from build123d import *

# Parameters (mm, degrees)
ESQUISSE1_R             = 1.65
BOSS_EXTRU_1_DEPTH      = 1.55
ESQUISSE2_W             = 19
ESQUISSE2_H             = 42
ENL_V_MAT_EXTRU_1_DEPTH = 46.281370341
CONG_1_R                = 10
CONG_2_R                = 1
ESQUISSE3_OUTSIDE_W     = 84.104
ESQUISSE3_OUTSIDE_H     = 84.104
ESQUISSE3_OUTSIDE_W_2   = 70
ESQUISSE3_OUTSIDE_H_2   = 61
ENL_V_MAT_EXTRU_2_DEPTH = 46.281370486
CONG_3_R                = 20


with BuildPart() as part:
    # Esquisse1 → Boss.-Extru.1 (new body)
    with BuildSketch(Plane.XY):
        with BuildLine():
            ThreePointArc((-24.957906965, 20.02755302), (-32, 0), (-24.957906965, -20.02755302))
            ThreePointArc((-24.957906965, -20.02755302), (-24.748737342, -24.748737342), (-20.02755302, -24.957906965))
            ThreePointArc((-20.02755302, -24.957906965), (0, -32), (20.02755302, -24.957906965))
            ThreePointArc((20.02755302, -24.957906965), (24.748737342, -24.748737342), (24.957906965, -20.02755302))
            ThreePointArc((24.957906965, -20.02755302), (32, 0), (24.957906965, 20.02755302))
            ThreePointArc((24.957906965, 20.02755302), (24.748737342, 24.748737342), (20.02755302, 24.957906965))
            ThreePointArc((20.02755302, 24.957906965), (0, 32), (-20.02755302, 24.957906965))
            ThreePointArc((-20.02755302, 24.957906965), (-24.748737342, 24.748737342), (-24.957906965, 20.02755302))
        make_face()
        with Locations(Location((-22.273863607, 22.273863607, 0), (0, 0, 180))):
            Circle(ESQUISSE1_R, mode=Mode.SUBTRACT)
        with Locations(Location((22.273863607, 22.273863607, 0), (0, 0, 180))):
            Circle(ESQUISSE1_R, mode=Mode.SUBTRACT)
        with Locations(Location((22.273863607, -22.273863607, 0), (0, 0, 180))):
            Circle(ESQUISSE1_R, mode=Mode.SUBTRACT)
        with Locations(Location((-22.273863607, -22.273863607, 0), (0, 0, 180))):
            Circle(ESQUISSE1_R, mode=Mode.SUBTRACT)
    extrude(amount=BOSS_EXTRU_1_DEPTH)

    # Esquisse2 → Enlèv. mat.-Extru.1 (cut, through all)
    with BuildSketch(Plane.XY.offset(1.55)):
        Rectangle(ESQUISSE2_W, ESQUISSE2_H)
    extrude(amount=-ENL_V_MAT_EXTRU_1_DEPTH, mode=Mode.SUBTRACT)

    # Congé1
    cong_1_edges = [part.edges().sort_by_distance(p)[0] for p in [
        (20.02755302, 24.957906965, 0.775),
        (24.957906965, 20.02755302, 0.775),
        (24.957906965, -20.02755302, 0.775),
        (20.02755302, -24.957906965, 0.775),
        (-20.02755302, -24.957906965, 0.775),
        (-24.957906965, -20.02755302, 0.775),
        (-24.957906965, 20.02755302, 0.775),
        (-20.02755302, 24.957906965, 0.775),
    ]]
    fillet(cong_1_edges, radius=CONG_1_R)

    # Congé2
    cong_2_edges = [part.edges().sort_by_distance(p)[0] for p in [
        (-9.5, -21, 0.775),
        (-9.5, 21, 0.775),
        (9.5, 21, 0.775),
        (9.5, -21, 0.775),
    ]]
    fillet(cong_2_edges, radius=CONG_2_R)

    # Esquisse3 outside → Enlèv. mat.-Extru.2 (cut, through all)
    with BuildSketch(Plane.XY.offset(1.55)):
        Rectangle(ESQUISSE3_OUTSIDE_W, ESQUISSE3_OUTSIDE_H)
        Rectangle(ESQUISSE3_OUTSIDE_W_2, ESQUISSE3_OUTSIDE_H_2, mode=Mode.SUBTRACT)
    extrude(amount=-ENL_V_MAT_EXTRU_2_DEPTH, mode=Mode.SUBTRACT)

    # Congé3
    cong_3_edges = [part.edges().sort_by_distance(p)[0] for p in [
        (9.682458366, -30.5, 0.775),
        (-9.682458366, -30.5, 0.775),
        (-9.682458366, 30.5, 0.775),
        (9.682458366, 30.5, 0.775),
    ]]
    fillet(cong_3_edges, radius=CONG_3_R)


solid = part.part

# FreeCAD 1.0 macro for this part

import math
import FreeCAD as App
import Part
import Sketcher
from FreeCAD import Vector


def edges_at(feature, points):
    """Names of the edges that pass closest to the given points."""
    edges = feature.Shape.Edges
    near = lambda p: min(range(len(edges)), key=lambda i: edges[i].distToShape(Part.Vertex(*p))[0])
    return sorted({f"Edge{near(p) + 1}" for p in points})

doc = App.newDocument("Part")
params = doc.addObject("Spreadsheet::Sheet", "Params")
for row, (alias, value) in enumerate([
    ("sketch1_radius", "32 mm"),
    ("sketch1_diameter", "3.3 mm"),
    ("sketch1_radius2", "3.5 mm"),
    ("pad1_length", "1.55 mm"),
    ("sketch2_width", "19 mm"),
    ("sketch2_height", "42 mm"),
    ("fillet_radius", "10 mm"),
    ("fillet2_radius", "1 mm"),
    ("sketch3_width", "70 mm"),
    ("sketch3_height", "61 mm"),
    ("fillet3_radius", "20 mm"),
], start=1):
    params.set(f"A{row}", alias)
    params.set(f"B{row}", "=" + value)
    params.setAlias(f"B{row}", alias)

body = doc.addObject("PartDesign::Body", "Body")

sketch1 = doc.addObject("Sketcher::SketchObject", "Sketch")
body.addObject(sketch1)
sketch1.AttachmentSupport = (doc.XY_Plane, [""])
sketch1.MapMode = "FlatFace"
sketch1.addGeometry([
    Part.ArcOfCircle(Part.Circle(Vector(0, 0, 0), Vector(0, 0, 1), 32), math.radians(141.254587), math.radians(218.745413)),
    Part.ArcOfCircle(Part.Circle(Vector(-22.273864, -22.273864, 0), Vector(0, 0, 1), 3.5), math.radians(140.073602), math.radians(309.926398)),
    Part.ArcOfCircle(Part.Circle(Vector(0, 0, 0), Vector(0, 0, 1), 32), math.radians(-128.745413), math.radians(-51.254587)),
    Part.ArcOfCircle(Part.Circle(Vector(22.273864, -22.273864, 0), Vector(0, 0, 1), 3.5), math.radians(-129.926398), math.radians(39.926398)),
    Part.ArcOfCircle(Part.Circle(Vector(0, 0, 0), Vector(0, 0, 1), 32), math.radians(-38.745413), math.radians(38.745413)),
    Part.ArcOfCircle(Part.Circle(Vector(22.273864, 22.273864, 0), Vector(0, 0, 1), 3.5), math.radians(-39.926398), math.radians(129.926398)),
    Part.ArcOfCircle(Part.Circle(Vector(0, 0, 0), Vector(0, 0, 1), 32), math.radians(51.254587), math.radians(128.745413)),
    Part.ArcOfCircle(Part.Circle(Vector(-22.273864, 22.273864, 0), Vector(0, 0, 1), 3.5), math.radians(50.073602), math.radians(219.926398)),
    Part.Circle(Vector(-22.273864, -22.273864, 0), Vector(0, 0, 1), 1.65),
    Part.Circle(Vector(22.273864, -22.273864, 0), Vector(0, 0, 1), 1.65),
    Part.Circle(Vector(-22.273864, 22.273864, 0), Vector(0, 0, 1), 1.65),
    Part.Circle(Vector(22.273864, 22.273864, 0), Vector(0, 0, 1), 1.65),
], False)
sketch1.addConstraint([
    Sketcher.Constraint("Coincident", 0, 2, 1, 1),
    Sketcher.Constraint("Coincident", 1, 2, 2, 1),
    Sketcher.Constraint("Coincident", 2, 2, 3, 1),
    Sketcher.Constraint("Coincident", 3, 2, 4, 1),
    Sketcher.Constraint("Coincident", 4, 2, 5, 1),
    Sketcher.Constraint("Coincident", 5, 2, 6, 1),
    Sketcher.Constraint("Coincident", 6, 2, 7, 1),
    Sketcher.Constraint("Coincident", 7, 2, 0, 1),
    Sketcher.Constraint("Coincident", 0, 3, -1, 1),
    Sketcher.Constraint("Coincident", 2, 3, -1, 1),
    Sketcher.Constraint("Coincident", 4, 3, -1, 1),
    Sketcher.Constraint("Coincident", 6, 3, -1, 1),
    Sketcher.Constraint("Coincident", 8, 3, 1, 3),
    Sketcher.Constraint("Coincident", 9, 3, 3, 3),
    Sketcher.Constraint("Coincident", 10, 3, 7, 3),
    Sketcher.Constraint("Coincident", 11, 3, 5, 3),
    Sketcher.Constraint("Equal", 0, 2),
    Sketcher.Constraint("Equal", 1, 3),
    Sketcher.Constraint("Equal", 2, 4),
    Sketcher.Constraint("Equal", 3, 5),
    Sketcher.Constraint("Equal", 4, 6),
    Sketcher.Constraint("Equal", 5, 7),
    Sketcher.Constraint("Equal", 8, 9),
    Sketcher.Constraint("Equal", 9, 10),
    Sketcher.Constraint("Equal", 10, 11),
    Sketcher.Constraint("Symmetric", 1, 3, 5, 3, -1, 1),
    Sketcher.Constraint("Symmetric", 3, 3, 7, 3, -1, 1),
    Sketcher.Constraint("Symmetric", 1, 3, 3, 3, -2),
    Sketcher.Constraint("Radius", 0, 32.0),
    Sketcher.Constraint("Diameter", 8, 3.3),
    Sketcher.Constraint("Radius", 1, 3.5),
    Sketcher.Constraint("DistanceY", 1, 3, 0, 2, 2.246311),
    Sketcher.Constraint("DistanceX", 1, 3, 1, 2, 2.246311),
])
sketch1.setExpression("Constraints[28]", "Params.sketch1_radius")
sketch1.setExpression("Constraints[29]", "Params.sketch1_diameter")
sketch1.setExpression("Constraints[30]", "Params.sketch1_radius2")
pad1 = doc.addObject("PartDesign::Pad", "Pad")
body.addObject(pad1)
pad1.Profile = sketch1
pad1.setExpression("Length", "Params.pad1_length")

sketch2 = doc.addObject("Sketcher::SketchObject", "Sketch001")
body.addObject(sketch2)
sketch2.AttachmentSupport = (doc.XY_Plane, [""])
sketch2.MapMode = "FlatFace"
sketch2.AttachmentOffset = App.Placement(Vector(0, 0, 1.55), App.Rotation())
sketch2.addGeometry([
    Part.LineSegment(Vector(-9.5, 21, 0), Vector(-9.5, -21, 0)),
    Part.LineSegment(Vector(-9.5, -21, 0), Vector(9.5, -21, 0)),
    Part.LineSegment(Vector(9.5, -21, 0), Vector(9.5, 21, 0)),
    Part.LineSegment(Vector(9.5, 21, 0), Vector(-9.5, 21, 0)),
], False)
sketch2.addConstraint([
    Sketcher.Constraint("Coincident", 0, 2, 1, 1),
    Sketcher.Constraint("Coincident", 1, 2, 2, 1),
    Sketcher.Constraint("Coincident", 2, 2, 3, 1),
    Sketcher.Constraint("Coincident", 3, 2, 0, 1),
    Sketcher.Constraint("Vertical", 0),
    Sketcher.Constraint("Horizontal", 1),
    Sketcher.Constraint("Vertical", 2),
    Sketcher.Constraint("Horizontal", 3),
    Sketcher.Constraint("Symmetric", 0, 2, 2, 2, -1, 1),
    Sketcher.Constraint("DistanceX", 1, 1, 1, 2, 19.0),
    Sketcher.Constraint("DistanceY", 0, 2, 0, 1, 42.0),
])
sketch2.setExpression("Constraints[9]", "Params.sketch2_width")
sketch2.setExpression("Constraints[10]", "Params.sketch2_height")
pocket1 = doc.addObject("PartDesign::Pocket", "Pocket")
body.addObject(pocket1)
pocket1.Profile = sketch2
pocket1.Type = "ThroughAll"
doc.recompute()

fillet = doc.addObject("PartDesign::Fillet", "Fillet")
body.addObject(fillet)
fillet.Base = (pocket1, edges_at(pocket1, [
    (20.028, 24.958, 0.775),
    (24.958, 20.028, 0.775),
    (24.958, -20.028, 0.775),
    (20.028, -24.958, 0.775),
    (-20.028, -24.958, 0.775),
    (-24.958, -20.028, 0.775),
    (-24.958, 20.028, 0.775),
    (-20.028, 24.958, 0.775),
]))
fillet.setExpression("Radius", "Params.fillet_radius")
doc.recompute()

fillet2 = doc.addObject("PartDesign::Fillet", "Fillet001")
body.addObject(fillet2)
fillet2.Base = (fillet, edges_at(fillet, [
    (-9.5, -21, 0.775),
    (-9.5, 21, 0.775),
    (9.5, 21, 0.775),
    (9.5, -21, 0.775),
]))
fillet2.setExpression("Radius", "Params.fillet2_radius")

sketch3 = doc.addObject("Sketcher::SketchObject", "Sketch002")
body.addObject(sketch3)
sketch3.AttachmentSupport = (doc.XY_Plane, [""])
sketch3.MapMode = "FlatFace"
sketch3.AttachmentOffset = App.Placement(Vector(0, 0, 1.55), App.Rotation())
sketch3.addGeometry([
    Part.LineSegment(Vector(-42.052, 42.052, 0), Vector(-42.052, -42.052, 0)),
    Part.LineSegment(Vector(-42.052, -42.052, 0), Vector(42.052, -42.052, 0)),
    Part.LineSegment(Vector(42.052, -42.052, 0), Vector(42.052, 42.052, 0)),
    Part.LineSegment(Vector(42.052, 42.052, 0), Vector(-42.052, 42.052, 0)),
    Part.LineSegment(Vector(35, -30.5, 0), Vector(-35, -30.5, 0)),
    Part.LineSegment(Vector(-35, -30.5, 0), Vector(-35, 30.5, 0)),
    Part.LineSegment(Vector(-35, 30.5, 0), Vector(35, 30.5, 0)),
    Part.LineSegment(Vector(35, 30.5, 0), Vector(35, -30.5, 0)),
], False)
sketch3.addConstraint([
    Sketcher.Constraint("Coincident", 0, 2, 1, 1),
    Sketcher.Constraint("Coincident", 1, 2, 2, 1),
    Sketcher.Constraint("Coincident", 2, 2, 3, 1),
    Sketcher.Constraint("Coincident", 3, 2, 0, 1),
    Sketcher.Constraint("Coincident", 4, 2, 5, 1),
    Sketcher.Constraint("Coincident", 5, 2, 6, 1),
    Sketcher.Constraint("Coincident", 6, 2, 7, 1),
    Sketcher.Constraint("Coincident", 7, 2, 4, 1),
    Sketcher.Constraint("Vertical", 0),
    Sketcher.Constraint("Horizontal", 1),
    Sketcher.Constraint("Vertical", 2),
    Sketcher.Constraint("Horizontal", 3),
    Sketcher.Constraint("Horizontal", 4),
    Sketcher.Constraint("Vertical", 5),
    Sketcher.Constraint("Horizontal", 6),
    Sketcher.Constraint("Vertical", 7),
    Sketcher.Constraint("Symmetric", 0, 2, 2, 2, -1, 1),
    Sketcher.Constraint("Symmetric", 4, 2, 6, 2, -1, 1),
    Sketcher.Constraint("Equal", 3, 0),
    Sketcher.Constraint("DistanceX", 4, 2, 4, 1, 70.0),
    Sketcher.Constraint("DistanceY", 5, 1, 5, 2, 61.0),
    Sketcher.Constraint("DistanceX", 1, 1, 1, 2, 84.104),
])
sketch3.setExpression("Constraints[19]", "Params.sketch3_width")
sketch3.setExpression("Constraints[20]", "Params.sketch3_height")
pocket2 = doc.addObject("PartDesign::Pocket", "Pocket001")
body.addObject(pocket2)
pocket2.Profile = sketch3
pocket2.Type = "ThroughAll"
doc.recompute()

fillet3 = doc.addObject("PartDesign::Fillet", "Fillet002")
body.addObject(fillet3)
fillet3.Base = (pocket2, edges_at(pocket2, [
    (9.682, -30.5, 0.775),
    (-9.682, -30.5, 0.775),
    (-9.682, 30.5, 0.775),
    (9.682, 30.5, 0.775),
]))
fillet3.setExpression("Radius", "Params.fillet3_radius")

doc.recompute()
